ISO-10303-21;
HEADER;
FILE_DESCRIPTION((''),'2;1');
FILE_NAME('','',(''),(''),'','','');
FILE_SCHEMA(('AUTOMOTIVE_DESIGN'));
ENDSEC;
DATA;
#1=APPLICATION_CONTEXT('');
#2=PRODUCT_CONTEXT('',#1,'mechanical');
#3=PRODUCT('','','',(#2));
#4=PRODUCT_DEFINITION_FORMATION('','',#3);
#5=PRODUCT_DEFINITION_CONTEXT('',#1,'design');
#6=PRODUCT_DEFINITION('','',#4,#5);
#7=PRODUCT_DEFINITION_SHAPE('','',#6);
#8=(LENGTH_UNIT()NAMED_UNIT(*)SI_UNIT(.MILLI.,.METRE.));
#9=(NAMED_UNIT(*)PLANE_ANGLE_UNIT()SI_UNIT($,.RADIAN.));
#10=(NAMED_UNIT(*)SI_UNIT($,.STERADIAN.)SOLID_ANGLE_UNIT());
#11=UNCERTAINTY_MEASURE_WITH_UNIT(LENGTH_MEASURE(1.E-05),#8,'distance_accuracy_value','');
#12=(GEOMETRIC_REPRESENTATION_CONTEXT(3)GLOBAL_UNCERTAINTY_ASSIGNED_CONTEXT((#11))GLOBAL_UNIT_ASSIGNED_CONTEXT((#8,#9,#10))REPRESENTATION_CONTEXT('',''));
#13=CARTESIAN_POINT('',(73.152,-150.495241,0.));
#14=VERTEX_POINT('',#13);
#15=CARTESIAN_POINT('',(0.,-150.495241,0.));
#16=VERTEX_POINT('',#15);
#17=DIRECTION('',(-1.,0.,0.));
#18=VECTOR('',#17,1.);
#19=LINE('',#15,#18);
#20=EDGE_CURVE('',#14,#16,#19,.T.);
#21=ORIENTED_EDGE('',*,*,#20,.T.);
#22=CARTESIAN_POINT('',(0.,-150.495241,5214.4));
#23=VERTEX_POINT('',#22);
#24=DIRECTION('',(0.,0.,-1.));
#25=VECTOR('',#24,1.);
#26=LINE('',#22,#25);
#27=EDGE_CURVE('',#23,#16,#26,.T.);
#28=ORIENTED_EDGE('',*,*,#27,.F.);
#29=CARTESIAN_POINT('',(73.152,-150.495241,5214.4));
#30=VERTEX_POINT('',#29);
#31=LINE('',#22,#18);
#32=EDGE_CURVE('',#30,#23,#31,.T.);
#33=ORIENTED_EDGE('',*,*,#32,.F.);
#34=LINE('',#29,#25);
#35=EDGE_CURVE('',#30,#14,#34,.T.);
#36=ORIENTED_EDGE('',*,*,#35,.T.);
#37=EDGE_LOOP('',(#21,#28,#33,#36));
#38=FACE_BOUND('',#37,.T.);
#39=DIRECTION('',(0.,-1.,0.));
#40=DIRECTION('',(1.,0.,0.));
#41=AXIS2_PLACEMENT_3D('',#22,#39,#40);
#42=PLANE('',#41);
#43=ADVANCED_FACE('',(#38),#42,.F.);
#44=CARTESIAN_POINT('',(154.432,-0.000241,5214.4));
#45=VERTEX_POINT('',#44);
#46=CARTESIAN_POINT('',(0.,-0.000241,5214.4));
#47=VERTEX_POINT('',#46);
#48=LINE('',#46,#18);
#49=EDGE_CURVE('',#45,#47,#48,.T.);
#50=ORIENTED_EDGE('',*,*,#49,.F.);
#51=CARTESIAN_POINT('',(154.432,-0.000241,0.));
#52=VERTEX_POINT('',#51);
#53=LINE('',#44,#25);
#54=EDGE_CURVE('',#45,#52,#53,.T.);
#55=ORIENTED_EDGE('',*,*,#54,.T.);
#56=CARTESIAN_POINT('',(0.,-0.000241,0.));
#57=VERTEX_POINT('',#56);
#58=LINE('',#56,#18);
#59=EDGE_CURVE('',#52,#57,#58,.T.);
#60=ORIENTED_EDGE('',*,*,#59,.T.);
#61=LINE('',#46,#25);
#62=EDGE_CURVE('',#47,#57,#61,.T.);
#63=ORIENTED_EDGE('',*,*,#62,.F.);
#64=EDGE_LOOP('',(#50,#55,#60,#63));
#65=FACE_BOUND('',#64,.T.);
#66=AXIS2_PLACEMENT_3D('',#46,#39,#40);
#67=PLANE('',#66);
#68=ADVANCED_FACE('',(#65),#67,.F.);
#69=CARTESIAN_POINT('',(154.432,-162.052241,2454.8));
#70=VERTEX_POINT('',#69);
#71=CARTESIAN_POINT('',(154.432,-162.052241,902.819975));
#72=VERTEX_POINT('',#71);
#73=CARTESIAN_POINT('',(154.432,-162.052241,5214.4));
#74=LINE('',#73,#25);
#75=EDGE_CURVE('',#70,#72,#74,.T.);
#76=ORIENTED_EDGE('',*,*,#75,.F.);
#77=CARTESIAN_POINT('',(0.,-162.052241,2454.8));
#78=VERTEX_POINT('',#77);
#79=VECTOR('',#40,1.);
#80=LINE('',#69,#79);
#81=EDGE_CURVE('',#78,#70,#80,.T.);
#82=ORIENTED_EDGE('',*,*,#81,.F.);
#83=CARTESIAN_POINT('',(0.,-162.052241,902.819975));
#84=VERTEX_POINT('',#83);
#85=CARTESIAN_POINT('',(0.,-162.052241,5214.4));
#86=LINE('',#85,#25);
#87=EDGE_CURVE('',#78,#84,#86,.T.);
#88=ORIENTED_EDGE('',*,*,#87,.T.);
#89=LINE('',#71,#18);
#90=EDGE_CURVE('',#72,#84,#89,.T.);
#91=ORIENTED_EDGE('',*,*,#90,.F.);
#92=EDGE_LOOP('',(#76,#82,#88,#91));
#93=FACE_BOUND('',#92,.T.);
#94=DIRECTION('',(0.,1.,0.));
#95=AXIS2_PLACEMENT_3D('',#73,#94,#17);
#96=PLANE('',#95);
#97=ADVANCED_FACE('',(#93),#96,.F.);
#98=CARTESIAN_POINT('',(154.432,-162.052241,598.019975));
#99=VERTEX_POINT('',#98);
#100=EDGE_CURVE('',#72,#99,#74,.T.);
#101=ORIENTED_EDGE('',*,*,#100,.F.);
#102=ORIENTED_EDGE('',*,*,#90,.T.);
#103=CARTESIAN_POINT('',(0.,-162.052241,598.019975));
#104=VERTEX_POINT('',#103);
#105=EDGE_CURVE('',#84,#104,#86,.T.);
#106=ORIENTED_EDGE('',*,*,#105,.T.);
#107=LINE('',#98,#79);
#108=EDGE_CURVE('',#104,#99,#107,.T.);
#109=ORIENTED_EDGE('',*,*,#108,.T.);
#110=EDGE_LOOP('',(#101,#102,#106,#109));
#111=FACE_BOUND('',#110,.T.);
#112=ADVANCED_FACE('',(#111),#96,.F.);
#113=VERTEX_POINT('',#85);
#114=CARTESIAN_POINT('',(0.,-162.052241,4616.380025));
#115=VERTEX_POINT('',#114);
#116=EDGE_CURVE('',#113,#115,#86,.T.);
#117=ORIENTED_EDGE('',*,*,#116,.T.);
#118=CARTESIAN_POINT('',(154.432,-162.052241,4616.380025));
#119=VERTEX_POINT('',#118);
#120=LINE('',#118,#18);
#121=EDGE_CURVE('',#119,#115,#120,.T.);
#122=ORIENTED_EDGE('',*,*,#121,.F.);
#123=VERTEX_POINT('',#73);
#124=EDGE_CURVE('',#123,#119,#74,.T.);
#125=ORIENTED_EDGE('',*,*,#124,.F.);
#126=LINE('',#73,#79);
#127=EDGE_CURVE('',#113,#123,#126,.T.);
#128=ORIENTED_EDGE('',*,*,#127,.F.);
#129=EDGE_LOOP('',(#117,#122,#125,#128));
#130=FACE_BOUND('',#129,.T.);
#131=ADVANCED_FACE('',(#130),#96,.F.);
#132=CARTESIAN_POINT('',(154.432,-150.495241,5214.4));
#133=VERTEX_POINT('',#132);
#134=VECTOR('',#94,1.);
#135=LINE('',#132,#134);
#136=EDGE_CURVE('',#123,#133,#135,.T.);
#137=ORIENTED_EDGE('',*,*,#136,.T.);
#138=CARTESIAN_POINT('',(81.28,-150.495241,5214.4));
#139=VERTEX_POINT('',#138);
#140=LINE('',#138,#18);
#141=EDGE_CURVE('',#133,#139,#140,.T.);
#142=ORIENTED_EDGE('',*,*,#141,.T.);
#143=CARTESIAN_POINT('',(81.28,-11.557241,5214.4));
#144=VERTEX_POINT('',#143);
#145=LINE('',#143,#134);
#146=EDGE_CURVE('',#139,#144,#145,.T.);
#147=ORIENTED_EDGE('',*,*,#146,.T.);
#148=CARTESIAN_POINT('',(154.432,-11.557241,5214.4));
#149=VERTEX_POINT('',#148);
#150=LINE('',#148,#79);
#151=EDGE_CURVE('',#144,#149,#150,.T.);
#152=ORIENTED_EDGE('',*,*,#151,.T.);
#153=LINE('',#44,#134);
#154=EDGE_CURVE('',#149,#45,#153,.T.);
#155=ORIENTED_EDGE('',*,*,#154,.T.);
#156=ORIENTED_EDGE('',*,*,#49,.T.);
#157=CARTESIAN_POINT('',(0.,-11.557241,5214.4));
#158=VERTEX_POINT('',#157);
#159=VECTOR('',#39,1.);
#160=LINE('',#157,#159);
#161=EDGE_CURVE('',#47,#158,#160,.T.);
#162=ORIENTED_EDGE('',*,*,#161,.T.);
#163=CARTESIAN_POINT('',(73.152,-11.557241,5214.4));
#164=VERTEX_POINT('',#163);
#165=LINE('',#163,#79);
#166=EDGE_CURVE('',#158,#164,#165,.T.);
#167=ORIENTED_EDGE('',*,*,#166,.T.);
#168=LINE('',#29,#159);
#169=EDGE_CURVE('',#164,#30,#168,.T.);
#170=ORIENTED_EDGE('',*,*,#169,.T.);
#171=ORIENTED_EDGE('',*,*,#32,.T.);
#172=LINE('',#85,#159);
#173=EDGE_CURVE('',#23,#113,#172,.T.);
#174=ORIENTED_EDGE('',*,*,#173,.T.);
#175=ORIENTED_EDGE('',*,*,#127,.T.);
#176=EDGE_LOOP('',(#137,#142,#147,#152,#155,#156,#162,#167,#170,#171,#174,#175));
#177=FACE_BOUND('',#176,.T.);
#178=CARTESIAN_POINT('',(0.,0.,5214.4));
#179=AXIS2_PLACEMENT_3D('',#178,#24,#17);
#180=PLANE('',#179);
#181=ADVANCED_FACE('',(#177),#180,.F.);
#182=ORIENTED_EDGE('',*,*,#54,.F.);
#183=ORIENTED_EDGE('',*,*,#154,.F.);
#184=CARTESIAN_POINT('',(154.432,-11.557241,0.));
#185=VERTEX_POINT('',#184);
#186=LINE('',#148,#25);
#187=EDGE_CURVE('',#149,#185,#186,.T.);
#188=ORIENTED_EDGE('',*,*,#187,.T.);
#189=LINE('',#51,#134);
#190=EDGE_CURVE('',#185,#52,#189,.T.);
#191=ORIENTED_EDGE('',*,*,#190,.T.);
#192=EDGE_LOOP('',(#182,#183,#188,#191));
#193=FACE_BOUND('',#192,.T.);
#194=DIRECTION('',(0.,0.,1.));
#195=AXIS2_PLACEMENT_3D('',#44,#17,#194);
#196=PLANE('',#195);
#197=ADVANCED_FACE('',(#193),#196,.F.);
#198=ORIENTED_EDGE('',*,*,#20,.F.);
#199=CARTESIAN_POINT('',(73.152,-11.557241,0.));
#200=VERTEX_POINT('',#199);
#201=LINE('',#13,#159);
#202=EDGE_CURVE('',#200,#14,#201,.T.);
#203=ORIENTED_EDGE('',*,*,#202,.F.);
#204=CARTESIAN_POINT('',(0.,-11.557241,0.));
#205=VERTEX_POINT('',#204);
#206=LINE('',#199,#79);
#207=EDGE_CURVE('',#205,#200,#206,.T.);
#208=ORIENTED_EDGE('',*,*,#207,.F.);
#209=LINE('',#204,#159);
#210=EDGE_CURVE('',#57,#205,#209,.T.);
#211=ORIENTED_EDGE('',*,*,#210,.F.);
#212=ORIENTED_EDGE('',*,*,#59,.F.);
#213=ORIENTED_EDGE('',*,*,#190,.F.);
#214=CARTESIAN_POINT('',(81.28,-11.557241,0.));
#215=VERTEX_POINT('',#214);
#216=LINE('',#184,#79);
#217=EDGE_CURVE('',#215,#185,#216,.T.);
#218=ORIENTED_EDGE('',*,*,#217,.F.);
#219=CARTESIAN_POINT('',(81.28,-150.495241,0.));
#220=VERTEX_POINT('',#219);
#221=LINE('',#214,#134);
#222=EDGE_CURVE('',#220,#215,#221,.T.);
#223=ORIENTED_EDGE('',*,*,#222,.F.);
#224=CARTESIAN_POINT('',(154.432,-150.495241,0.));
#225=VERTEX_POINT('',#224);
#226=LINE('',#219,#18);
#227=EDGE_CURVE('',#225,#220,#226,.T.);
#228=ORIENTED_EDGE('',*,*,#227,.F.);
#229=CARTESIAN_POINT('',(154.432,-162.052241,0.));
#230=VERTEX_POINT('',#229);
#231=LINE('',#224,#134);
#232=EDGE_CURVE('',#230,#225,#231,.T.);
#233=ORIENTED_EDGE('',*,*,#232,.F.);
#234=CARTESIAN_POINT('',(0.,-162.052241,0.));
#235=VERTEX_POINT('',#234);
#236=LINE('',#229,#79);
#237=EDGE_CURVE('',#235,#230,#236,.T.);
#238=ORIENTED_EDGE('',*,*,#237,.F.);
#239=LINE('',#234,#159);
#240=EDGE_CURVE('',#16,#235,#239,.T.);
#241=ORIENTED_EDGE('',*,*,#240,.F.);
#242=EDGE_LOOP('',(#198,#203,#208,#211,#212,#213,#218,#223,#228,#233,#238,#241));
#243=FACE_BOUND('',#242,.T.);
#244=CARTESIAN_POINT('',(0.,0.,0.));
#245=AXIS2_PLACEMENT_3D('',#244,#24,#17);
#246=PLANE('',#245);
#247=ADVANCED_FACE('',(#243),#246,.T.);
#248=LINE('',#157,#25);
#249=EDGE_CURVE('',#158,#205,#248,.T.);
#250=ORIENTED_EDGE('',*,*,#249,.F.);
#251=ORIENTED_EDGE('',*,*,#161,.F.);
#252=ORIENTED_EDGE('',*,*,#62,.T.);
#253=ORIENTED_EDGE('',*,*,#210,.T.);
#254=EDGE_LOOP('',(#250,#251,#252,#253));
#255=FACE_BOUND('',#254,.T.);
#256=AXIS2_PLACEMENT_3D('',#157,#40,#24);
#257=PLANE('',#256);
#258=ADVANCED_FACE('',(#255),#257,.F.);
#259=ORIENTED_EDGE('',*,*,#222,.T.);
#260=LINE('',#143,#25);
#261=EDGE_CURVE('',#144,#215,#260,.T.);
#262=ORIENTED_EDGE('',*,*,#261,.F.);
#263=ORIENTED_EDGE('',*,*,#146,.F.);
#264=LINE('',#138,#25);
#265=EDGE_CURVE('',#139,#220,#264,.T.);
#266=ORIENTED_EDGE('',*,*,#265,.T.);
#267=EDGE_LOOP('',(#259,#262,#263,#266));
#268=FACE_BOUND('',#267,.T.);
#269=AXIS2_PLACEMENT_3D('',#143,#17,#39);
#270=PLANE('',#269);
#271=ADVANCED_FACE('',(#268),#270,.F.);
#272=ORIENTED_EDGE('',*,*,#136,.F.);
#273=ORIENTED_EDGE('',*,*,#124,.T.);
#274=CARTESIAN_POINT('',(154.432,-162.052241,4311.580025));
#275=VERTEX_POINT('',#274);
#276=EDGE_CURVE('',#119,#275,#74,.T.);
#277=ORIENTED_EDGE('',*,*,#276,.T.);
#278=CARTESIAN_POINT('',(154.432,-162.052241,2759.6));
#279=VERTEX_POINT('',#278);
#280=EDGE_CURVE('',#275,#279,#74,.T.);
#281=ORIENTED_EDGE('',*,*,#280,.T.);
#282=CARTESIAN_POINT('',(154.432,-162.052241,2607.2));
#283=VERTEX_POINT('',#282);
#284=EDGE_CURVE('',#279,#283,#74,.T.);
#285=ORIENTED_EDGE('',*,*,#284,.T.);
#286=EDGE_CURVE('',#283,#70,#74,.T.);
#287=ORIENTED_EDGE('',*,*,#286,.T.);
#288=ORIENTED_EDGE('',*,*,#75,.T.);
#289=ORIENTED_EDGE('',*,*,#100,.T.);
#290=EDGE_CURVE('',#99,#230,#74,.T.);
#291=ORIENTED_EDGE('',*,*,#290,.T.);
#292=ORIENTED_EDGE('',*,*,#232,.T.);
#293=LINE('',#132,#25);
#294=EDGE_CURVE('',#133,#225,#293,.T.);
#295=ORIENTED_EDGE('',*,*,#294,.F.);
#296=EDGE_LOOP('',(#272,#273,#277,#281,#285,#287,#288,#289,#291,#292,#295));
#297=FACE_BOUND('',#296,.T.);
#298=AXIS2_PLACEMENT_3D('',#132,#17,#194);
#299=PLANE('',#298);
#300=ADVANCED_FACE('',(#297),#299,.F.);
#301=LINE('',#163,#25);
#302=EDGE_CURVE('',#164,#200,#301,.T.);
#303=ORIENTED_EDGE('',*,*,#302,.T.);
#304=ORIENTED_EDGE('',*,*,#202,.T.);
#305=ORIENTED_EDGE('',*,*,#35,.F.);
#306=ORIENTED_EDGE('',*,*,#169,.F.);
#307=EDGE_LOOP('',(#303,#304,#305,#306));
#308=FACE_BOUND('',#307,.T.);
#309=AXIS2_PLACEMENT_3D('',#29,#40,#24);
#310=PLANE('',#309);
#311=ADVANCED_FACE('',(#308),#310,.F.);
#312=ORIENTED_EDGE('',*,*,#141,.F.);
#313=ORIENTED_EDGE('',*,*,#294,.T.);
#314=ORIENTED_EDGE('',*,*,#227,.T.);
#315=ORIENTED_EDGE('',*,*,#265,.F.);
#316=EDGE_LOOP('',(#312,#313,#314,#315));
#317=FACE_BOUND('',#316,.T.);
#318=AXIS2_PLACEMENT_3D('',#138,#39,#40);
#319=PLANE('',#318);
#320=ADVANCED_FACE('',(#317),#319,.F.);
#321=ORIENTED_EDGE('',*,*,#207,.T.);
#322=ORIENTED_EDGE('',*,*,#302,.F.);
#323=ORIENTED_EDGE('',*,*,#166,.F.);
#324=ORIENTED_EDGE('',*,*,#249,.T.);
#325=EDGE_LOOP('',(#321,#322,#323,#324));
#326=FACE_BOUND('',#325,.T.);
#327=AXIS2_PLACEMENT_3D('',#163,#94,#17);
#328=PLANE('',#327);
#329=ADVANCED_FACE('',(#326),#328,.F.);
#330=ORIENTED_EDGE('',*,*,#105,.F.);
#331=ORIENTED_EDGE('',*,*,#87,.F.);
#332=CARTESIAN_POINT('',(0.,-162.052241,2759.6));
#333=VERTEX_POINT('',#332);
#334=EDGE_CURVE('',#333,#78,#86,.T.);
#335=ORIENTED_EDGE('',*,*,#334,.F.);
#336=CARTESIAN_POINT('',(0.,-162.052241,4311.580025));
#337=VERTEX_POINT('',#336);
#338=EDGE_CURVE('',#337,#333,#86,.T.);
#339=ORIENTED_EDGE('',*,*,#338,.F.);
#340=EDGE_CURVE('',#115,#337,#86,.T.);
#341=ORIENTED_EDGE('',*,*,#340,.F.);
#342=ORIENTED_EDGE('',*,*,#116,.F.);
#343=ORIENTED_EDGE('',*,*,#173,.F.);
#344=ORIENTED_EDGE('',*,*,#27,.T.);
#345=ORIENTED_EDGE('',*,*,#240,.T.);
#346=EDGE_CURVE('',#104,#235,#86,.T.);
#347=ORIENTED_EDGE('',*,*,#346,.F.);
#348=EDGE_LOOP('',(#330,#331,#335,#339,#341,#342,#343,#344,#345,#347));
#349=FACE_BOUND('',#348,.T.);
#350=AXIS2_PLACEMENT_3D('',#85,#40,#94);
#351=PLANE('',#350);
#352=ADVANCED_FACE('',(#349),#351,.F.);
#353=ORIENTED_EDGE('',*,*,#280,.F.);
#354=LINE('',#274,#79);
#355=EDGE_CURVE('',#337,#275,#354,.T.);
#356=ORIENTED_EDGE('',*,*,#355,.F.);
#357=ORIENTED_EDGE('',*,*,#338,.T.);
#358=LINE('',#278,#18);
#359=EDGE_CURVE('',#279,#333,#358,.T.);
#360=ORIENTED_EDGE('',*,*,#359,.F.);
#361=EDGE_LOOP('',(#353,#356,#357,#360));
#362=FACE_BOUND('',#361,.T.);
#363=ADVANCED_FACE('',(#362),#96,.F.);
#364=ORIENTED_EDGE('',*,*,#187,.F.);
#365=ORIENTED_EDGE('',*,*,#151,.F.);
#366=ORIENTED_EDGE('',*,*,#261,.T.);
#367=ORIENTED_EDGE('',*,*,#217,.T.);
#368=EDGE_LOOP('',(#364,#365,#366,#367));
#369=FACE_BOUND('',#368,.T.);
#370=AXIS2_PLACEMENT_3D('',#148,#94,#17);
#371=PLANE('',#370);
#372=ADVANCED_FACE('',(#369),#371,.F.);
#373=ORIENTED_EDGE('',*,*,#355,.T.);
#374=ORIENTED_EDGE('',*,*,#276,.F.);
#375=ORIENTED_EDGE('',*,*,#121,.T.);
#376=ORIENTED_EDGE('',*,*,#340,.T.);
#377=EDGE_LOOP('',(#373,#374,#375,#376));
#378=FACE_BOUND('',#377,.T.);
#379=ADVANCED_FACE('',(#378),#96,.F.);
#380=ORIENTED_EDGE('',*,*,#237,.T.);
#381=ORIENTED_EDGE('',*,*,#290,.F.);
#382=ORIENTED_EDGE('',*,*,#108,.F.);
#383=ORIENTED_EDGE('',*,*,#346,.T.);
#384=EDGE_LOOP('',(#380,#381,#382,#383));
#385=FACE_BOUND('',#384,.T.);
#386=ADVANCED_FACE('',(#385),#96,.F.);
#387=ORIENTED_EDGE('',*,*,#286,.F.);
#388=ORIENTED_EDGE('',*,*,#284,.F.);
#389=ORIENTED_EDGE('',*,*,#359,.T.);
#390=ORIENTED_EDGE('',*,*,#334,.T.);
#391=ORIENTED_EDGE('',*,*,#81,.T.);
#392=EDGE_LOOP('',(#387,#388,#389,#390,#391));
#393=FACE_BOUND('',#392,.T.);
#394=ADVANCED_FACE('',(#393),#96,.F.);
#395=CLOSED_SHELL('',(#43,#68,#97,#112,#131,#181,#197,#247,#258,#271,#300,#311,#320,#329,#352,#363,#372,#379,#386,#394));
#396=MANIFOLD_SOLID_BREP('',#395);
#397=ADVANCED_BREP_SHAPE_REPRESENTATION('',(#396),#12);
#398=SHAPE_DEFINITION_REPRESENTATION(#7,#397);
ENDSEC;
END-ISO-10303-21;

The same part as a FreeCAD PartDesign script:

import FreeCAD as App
import Part
import Sketcher
Q = App.Units.Quantity


def add_polygon(sketch, points):
    """Adds a closed chain of lines whose ends are joined by coincident constraints."""
    first, n = sketch.GeometryCount, len(points)
    for a, b in zip(points, points[1:] + points[:1]):
        sketch.addGeometry(Part.LineSegment(App.Vector(*a, 0), App.Vector(*b, 0)), False)
    for i in range(n):
        sketch.addConstraint(Sketcher.Constraint("Coincident", first + i, 2, first + (i + 1) % n, 1))

doc = App.newDocument("Part")
params = doc.addObject("Spreadsheet::Sheet", "Params")
for row, (alias, value) in enumerate([
    ("sketch1_width", "6.08 in"),
    ("sketch1_width2", "2.88 in"),
    ("sketch1_height", "5.47 in"),
    ("sketch1_height2", "0.455 in"),
    ("pad1_length", "5214.4 mm"),
], start=1):
    params.set(f"A{row}", alias)
    params.set(f"B{row}", "=" + value)
    params.setAlias(f"B{row}", alias)

body = doc.addObject("PartDesign::Body", "Body")

# Sketch on XY plane
sketch1 = body.newObject("Sketcher::SketchObject", "Sketch")
sketch1.AttachmentSupport = (doc.getObject("XY_Plane"), [""])
sketch1.MapMode = "FlatFace"
add_polygon(sketch1, [(154, 0), (0, 0), (0, -12), (73, -12), (73, -150), (0, -150), (0, -162), (154, -162), (154, -150), (81, -150), (81, -12), (154, -12)])  # lines 0-11
sketch1.addConstraint([
    Sketcher.Constraint("Horizontal", 0),
    Sketcher.Constraint("Vertical", 1),
    Sketcher.Constraint("Horizontal", 2),
    Sketcher.Constraint("Vertical", 3),
    Sketcher.Constraint("Horizontal", 4),
    Sketcher.Constraint("Vertical", 5),
    Sketcher.Constraint("Horizontal", 6),
    Sketcher.Constraint("Vertical", 7),
    Sketcher.Constraint("Horizontal", 8),
    Sketcher.Constraint("Vertical", 9),
    Sketcher.Constraint("Horizontal", 10),
    Sketcher.Constraint("Vertical", 11),
    Sketcher.Constraint("PointOnObject", 0, 2, -2),
    Sketcher.Constraint("PointOnObject", 4, 2, -2),
    Sketcher.Constraint("Horizontal", 4, 2, 7, 2),
    Sketcher.Constraint("Horizontal", 2, 2, 9, 2),
    Sketcher.Constraint("Vertical", 7, 2, 10, 2),
    Sketcher.Constraint("Equal", 4, 8),
    Sketcher.Constraint("Equal", 1, 5),
    Sketcher.Constraint("DistanceX", 0, 2, 0, 1, Q("6.08 in")),
    Sketcher.Constraint("DistanceX", 2, 1, 2, 2, Q("2.88 in")),
    Sketcher.Constraint("DistanceY", 3, 2, 3, 1, Q("5.47 in")),
    Sketcher.Constraint("DistanceY", 1, 2, 1, 1, Q("0.455 in")),
    Sketcher.Constraint("DistanceY", 0, 2, -1, 1, Q("0.000241 mm")),
])
sketch1.setExpression("Constraints[31]", "Params.sketch1_width")
sketch1.setExpression("Constraints[32]", "Params.sketch1_width2")
sketch1.setExpression("Constraints[33]", "Params.sketch1_height")
sketch1.setExpression("Constraints[34]", "Params.sketch1_height2")
pad1 = body.newObject("PartDesign::Pad", "Pad")
pad1.Profile = sketch1
pad1.setExpression("Length", "Params.pad1_length")

doc.recompute()
